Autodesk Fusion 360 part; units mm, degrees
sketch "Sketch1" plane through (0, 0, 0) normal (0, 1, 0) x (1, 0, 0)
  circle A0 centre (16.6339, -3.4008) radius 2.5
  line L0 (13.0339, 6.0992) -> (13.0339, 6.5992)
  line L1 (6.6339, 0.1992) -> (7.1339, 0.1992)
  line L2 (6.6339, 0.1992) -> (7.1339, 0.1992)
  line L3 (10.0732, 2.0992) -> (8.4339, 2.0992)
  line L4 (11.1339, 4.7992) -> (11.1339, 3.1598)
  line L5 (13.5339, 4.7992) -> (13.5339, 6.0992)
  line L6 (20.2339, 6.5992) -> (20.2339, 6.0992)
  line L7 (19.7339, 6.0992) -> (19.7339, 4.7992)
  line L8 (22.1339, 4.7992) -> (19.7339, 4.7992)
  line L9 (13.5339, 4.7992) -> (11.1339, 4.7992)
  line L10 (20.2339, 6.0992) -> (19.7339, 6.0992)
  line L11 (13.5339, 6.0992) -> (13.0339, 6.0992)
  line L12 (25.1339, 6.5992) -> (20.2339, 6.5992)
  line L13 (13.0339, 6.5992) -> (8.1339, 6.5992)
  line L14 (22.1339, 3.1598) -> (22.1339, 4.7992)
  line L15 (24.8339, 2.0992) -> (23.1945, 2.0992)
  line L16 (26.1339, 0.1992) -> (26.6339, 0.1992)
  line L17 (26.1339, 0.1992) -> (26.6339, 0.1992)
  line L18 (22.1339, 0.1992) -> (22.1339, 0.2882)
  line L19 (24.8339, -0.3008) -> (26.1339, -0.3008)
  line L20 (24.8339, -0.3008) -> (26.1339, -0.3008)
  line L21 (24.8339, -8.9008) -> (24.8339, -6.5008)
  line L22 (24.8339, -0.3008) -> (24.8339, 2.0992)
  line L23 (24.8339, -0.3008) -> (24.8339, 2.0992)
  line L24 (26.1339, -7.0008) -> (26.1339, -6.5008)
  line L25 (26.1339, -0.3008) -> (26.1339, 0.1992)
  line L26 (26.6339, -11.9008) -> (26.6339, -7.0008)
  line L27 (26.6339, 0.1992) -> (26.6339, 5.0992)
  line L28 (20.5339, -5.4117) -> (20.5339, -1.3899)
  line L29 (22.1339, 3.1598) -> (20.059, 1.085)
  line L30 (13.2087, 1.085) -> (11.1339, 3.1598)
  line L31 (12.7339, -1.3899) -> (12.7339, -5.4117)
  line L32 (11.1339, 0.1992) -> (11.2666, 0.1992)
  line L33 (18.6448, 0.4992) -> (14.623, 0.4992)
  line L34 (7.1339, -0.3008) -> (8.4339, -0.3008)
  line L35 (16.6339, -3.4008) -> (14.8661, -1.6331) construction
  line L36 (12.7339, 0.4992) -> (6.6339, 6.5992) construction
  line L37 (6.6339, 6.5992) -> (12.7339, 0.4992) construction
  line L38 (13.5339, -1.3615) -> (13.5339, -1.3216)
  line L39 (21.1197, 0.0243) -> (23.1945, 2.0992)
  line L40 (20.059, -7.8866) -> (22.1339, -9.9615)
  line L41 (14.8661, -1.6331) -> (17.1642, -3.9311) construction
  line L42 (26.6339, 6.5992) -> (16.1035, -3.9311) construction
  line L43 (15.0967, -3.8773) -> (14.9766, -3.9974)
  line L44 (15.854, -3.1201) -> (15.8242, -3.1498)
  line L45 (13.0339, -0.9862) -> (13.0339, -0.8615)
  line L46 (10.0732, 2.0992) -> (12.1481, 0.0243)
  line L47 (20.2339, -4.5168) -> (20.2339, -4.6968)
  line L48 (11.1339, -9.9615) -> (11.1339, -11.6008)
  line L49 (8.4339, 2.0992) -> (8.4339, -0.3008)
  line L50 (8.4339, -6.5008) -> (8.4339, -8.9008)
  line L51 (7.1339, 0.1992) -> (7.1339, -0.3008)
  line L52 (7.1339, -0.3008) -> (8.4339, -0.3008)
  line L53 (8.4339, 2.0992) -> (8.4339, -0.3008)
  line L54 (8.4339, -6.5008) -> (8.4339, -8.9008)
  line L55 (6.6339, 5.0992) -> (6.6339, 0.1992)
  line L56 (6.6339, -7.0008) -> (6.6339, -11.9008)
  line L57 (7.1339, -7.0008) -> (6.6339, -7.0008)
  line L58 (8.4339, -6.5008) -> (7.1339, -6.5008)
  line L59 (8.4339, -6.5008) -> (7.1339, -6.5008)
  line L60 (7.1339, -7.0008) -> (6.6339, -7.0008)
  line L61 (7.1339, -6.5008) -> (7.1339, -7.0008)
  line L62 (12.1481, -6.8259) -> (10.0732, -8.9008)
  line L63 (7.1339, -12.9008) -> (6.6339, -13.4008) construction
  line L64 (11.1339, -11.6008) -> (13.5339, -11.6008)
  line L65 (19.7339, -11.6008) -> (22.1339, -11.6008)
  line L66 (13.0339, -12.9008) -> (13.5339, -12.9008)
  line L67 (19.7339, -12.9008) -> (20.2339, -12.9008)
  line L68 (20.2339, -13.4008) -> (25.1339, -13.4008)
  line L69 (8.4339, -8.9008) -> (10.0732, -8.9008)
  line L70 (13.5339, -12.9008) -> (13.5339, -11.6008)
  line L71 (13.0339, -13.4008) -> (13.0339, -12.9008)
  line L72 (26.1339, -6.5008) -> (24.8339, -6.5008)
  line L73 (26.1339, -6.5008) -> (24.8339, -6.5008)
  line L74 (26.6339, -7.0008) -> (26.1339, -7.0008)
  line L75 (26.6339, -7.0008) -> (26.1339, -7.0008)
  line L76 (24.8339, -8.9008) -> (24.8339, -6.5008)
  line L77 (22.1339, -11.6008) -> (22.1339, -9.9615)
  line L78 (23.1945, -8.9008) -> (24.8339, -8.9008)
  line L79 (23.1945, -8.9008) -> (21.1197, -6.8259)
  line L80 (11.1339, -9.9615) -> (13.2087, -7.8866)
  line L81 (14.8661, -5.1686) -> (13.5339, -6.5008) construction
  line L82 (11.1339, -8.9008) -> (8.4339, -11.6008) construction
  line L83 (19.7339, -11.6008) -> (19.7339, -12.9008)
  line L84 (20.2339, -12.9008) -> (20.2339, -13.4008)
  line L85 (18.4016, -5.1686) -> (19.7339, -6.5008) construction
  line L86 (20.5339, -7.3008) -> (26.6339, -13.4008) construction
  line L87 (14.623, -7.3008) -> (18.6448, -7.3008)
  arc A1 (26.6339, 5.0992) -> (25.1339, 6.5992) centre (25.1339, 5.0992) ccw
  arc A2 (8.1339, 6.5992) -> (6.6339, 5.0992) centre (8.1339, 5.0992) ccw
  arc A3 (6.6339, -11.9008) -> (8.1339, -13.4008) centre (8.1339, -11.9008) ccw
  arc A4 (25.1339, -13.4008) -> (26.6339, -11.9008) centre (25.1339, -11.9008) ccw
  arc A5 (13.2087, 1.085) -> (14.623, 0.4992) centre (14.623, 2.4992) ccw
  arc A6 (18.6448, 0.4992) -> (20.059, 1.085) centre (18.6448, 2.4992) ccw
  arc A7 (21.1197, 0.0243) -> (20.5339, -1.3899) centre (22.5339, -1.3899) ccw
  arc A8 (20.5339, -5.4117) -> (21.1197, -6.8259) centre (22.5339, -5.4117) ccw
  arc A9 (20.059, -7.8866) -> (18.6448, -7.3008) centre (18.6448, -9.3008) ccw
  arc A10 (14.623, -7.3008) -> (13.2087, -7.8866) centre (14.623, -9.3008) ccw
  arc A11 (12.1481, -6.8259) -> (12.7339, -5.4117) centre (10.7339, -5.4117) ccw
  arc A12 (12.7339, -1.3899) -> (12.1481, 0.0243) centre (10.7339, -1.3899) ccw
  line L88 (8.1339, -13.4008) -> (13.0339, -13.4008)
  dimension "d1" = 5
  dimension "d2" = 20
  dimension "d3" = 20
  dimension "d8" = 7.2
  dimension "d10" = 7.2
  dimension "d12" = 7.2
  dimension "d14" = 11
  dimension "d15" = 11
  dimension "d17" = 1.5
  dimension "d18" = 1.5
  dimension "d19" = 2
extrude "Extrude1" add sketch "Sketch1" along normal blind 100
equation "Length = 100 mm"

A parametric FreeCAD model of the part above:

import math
import FreeCAD as App
import Part
import Sketcher
from FreeCAD import Vector

doc = App.newDocument("Part")
body = doc.addObject("PartDesign::Body", "Body")

# Sketch on XZ plane
sketch1 = body.newObject("Sketcher::SketchObject", "Sketch")
sketch1.AttachmentSupport = (doc.getObject("XZ_Plane"), [""])
sketch1.MapMode = "FlatFace"
sketch1.addGeometry(Part.LineSegment(Vector(13.5339, -6.0992, 0), Vector(13.0339, -6.0992, 0)), False)
sketch1.addGeometry(Part.LineSegment(Vector(13.0339, -6.0992, 0), Vector(13.0339, -6.5992, 0)), False)
sketch1.addGeometry(Part.LineSegment(Vector(13.0339, -6.5992, 0), Vector(8.1339, -6.5992, 0)), False)
sketch1.addGeometry(Part.ArcOfCircle(Part.Circle(Vector(8.1339, -5.0992, 0), Vector(0, 0, 1), 1.5), math.radians(180), math.radians(270)), False)
sketch1.addGeometry(Part.LineSegment(Vector(6.6339, -5.0992, 0), Vector(6.6339, -0.1992, 0)), False)
sketch1.addGeometry(Part.LineSegment(Vector(6.6339, -0.1992, 0), Vector(7.1339, -0.1992, 0)), False)
sketch1.addGeometry(Part.LineSegment(Vector(7.1339, -0.1992, 0), Vector(7.1339, 0.3008, 0)), False)
sketch1.addGeometry(Part.LineSegment(Vector(7.1339, 0.3008, 0), Vector(8.4339, 0.3008, 0)), False)
sketch1.addGeometry(Part.LineSegment(Vector(8.4339, 0.3008, 0), Vector(8.4339, -2.0992, 0)), False)
sketch1.addGeometry(Part.LineSegment(Vector(8.4339, -2.0992, 0), Vector(10.0732, -2.0992, 0)), False)
sketch1.addGeometry(Part.LineSegment(Vector(10.0732, -2.0992, 0), Vector(12.1481, -0.0243, 0)), False)
sketch1.addGeometry(Part.ArcOfCircle(Part.Circle(Vector(10.7339, 1.3899, 0), Vector(0, 0, 1), 2), math.radians(-45), math.radians(0)), False)
sketch1.addGeometry(Part.LineSegment(Vector(12.7339, 1.3899, 0), Vector(12.7339, 5.4117, 0)), False)
sketch1.addGeometry(Part.ArcOfCircle(Part.Circle(Vector(10.7339, 5.4117, 0), Vector(0, 0, 1), 1.999981), math.radians(0), math.radians(45)), False)
sketch1.addGeometry(Part.LineSegment(Vector(12.1481, 6.8259, 0), Vector(10.0732, 8.9008, 0)), False)
sketch1.addGeometry(Part.LineSegment(Vector(10.0732, 8.9008, 0), Vector(8.4339, 8.9008, 0)), False)
sketch1.addGeometry(Part.LineSegment(Vector(8.4339, 8.9008, 0), Vector(8.4339, 6.5008, 0)), False)
sketch1.addGeometry(Part.LineSegment(Vector(8.4339, 6.5008, 0), Vector(7.1339, 6.5008, 0)), False)
sketch1.addGeometry(Part.LineSegment(Vector(7.1339, 6.5008, 0), Vector(7.1339, 7.0008, 0)), False)
sketch1.addGeometry(Part.LineSegment(Vector(7.1339, 7.0008, 0), Vector(6.6339, 7.0008, 0)), False)
sketch1.addGeometry(Part.LineSegment(Vector(6.6339, 7.0008, 0), Vector(6.6339, 11.9008, 0)), False)
sketch1.addGeometry(Part.ArcOfCircle(Part.Circle(Vector(8.1339, 11.9008, 0), Vector(0, 0, 1), 1.5), math.radians(90), math.radians(180)), False)
sketch1.addGeometry(Part.LineSegment(Vector(8.1339, 13.4008, 0), Vector(13.0339, 13.4008, 0)), False)
sketch1.addGeometry(Part.LineSegment(Vector(13.0339, 13.4008, 0), Vector(13.0339, 12.9008, 0)), False)
sketch1.addGeometry(Part.LineSegment(Vector(13.0339, 12.9008, 0), Vector(13.5339, 12.9008, 0)), False)
sketch1.addGeometry(Part.LineSegment(Vector(13.5339, 12.9008, 0), Vector(13.5339, 11.6008, 0)), False)
sketch1.addGeometry(Part.LineSegment(Vector(13.5339, 11.6008, 0), Vector(11.1339, 11.6008, 0)), False)
sketch1.addGeometry(Part.LineSegment(Vector(11.1339, 11.6008, 0), Vector(11.1339, 9.9615, 0)), False)
sketch1.addGeometry(Part.LineSegment(Vector(11.1339, 9.9615, 0), Vector(13.2087, 7.8866, 0)), False)
sketch1.addGeometry(Part.ArcOfCircle(Part.Circle(Vector(14.623, 9.3008, 0), Vector(0, 0, 1), 2), math.radians(-135.002026), math.radians(-90)), False)
sketch1.addGeometry(Part.LineSegment(Vector(14.623, 7.3008, 0), Vector(18.6448, 7.3008, 0)), False)
sketch1.addGeometry(Part.ArcOfCircle(Part.Circle(Vector(18.6448, 9.3008, 0), Vector(0, 0, 1), 1.999981), math.radians(-90), math.radians(-45)), False)
sketch1.addGeometry(Part.LineSegment(Vector(20.059, 7.8866, 0), Vector(22.1339, 9.9615, 0)), False)
sketch1.addGeometry(Part.LineSegment(Vector(22.1339, 9.9615, 0), Vector(22.1339, 11.6008, 0)), False)
sketch1.addGeometry(Part.LineSegment(Vector(22.1339, 11.6008, 0), Vector(19.7339, 11.6008, 0)), False)
sketch1.addGeometry(Part.LineSegment(Vector(19.7339, 11.6008, 0), Vector(19.7339, 12.9008, 0)), False)
sketch1.addGeometry(Part.LineSegment(Vector(19.7339, 12.9008, 0), Vector(20.2339, 12.9008, 0)), False)
sketch1.addGeometry(Part.LineSegment(Vector(20.2339, 12.9008, 0), Vector(20.2339, 13.4008, 0)), False)
sketch1.addGeometry(Part.LineSegment(Vector(20.2339, 13.4008, 0), Vector(25.1339, 13.4008, 0)), False)
sketch1.addGeometry(Part.ArcOfCircle(Part.Circle(Vector(25.1339, 11.9008, 0), Vector(0, 0, 1), 1.5), math.radians(0), math.radians(90)), False)
sketch1.addGeometry(Part.LineSegment(Vector(26.6339, 11.9008, 0), Vector(26.6339, 7.0008, 0)), False)
sketch1.addGeometry(Part.LineSegment(Vector(26.6339, 7.0008, 0), Vector(26.1339, 7.0008, 0)), False)
sketch1.addGeometry(Part.LineSegment(Vector(26.1339, 7.0008, 0), Vector(26.1339, 6.5008, 0)), False)
sketch1.addGeometry(Part.LineSegment(Vector(26.1339, 6.5008, 0), Vector(24.8339, 6.5008, 0)), False)
sketch1.addGeometry(Part.LineSegment(Vector(24.8339, 6.5008, 0), Vector(24.8339, 8.9008, 0)), False)
sketch1.addGeometry(Part.LineSegment(Vector(24.8339, 8.9008, 0), Vector(23.1945, 8.9008, 0)), False)
sketch1.addGeometry(Part.LineSegment(Vector(23.1945, 8.9008, 0), Vector(21.1197, 6.8259, 0)), False)
sketch1.addGeometry(Part.ArcOfCircle(Part.Circle(Vector(22.5339, 5.4117, 0), Vector(0, 0, 1), 2), math.radians(135), math.radians(180)), False)
sketch1.addGeometry(Part.LineSegment(Vector(20.5339, 5.4117, 0), Vector(20.5339, 1.3899, 0)), False)
sketch1.addGeometry(Part.ArcOfCircle(Part.Circle(Vector(22.5339, 1.3899, 0), Vector(0, 0, 1), 1.999981), math.radians(180), math.radians(225)), False)
sketch1.addGeometry(Part.LineSegment(Vector(21.1197, -0.0243, 0), Vector(23.1945, -2.0992, 0)), False)
sketch1.addGeometry(Part.LineSegment(Vector(23.1945, -2.0992, 0), Vector(24.8339, -2.0992, 0)), False)
sketch1.addGeometry(Part.LineSegment(Vector(24.8339, -2.0992, 0), Vector(24.8339, 0.3008, 0)), False)
sketch1.addGeometry(Part.LineSegment(Vector(24.8339, 0.3008, 0), Vector(26.1339, 0.3008, 0)), False)
sketch1.addGeometry(Part.LineSegment(Vector(26.1339, 0.3008, 0), Vector(26.1339, -0.1992, 0)), False)
sketch1.addGeometry(Part.LineSegment(Vector(26.1339, -0.1992, 0), Vector(26.6339, -0.1992, 0)), False)
sketch1.addGeometry(Part.LineSegment(Vector(26.6339, -0.1992, 0), Vector(26.6339, -5.0992, 0)), False)
sketch1.addGeometry(Part.ArcOfCircle(Part.Circle(Vector(25.1339, -5.0992, 0), Vector(0, 0, 1), 1.5), math.radians(-90), math.radians(0)), False)
sketch1.addGeometry(Part.LineSegment(Vector(25.1339, -6.5992, 0), Vector(20.2339, -6.5992, 0)), False)
sketch1.addGeometry(Part.LineSegment(Vector(20.2339, -6.5992, 0), Vector(20.2339, -6.0992, 0)), False)
sketch1.addGeometry(Part.LineSegment(Vector(20.2339, -6.0992, 0), Vector(19.7339, -6.0992, 0)), False)
sketch1.addGeometry(Part.LineSegment(Vector(19.7339, -6.0992, 0), Vector(19.7339, -4.7992, 0)), False)
sketch1.addGeometry(Part.LineSegment(Vector(19.7339, -4.7992, 0), Vector(22.1339, -4.7992, 0)), False)
sketch1.addGeometry(Part.LineSegment(Vector(22.1339, -4.7992, 0), Vector(22.1339, -3.1598, 0)), False)
sketch1.addGeometry(Part.LineSegment(Vector(22.1339, -3.1598, 0), Vector(20.059, -1.085, 0)), False)
sketch1.addGeometry(Part.ArcOfCircle(Part.Circle(Vector(18.6448, -2.4992, 0), Vector(0, 0, 1), 2), math.radians(45), math.radians(90)), False)
sketch1.addGeometry(Part.LineSegment(Vector(18.6448, -0.4992, 0), Vector(14.623, -0.4992, 0)), False)
sketch1.addGeometry(Part.ArcOfCircle(Part.Circle(Vector(14.623, -2.4992, 0), Vector(0, 0, 1), 2.000052), math.radians(90), math.radians(135.002026)), False)
sketch1.addGeometry(Part.LineSegment(Vector(13.2087, -1.085, 0), Vector(11.1339, -3.1598, 0)), False)
sketch1.addGeometry(Part.LineSegment(Vector(11.1339, -3.1598, 0), Vector(11.1339, -4.7992, 0)), False)
sketch1.addGeometry(Part.LineSegment(Vector(11.1339, -4.7992, 0), Vector(13.5339, -4.7992, 0)), False)
sketch1.addGeometry(Part.LineSegment(Vector(13.5339, -4.7992, 0), Vector(13.5339, -6.0992, 0)), False)
sketch1.addGeometry(Part.Circle(Vector(16.6339, 3.4008, 0), Vector(0, 0, 1), 2.5), False)
sketch1.addConstraint(Sketcher.Constraint("Coincident", 0, 2, 1, 1))
sketch1.addConstraint(Sketcher.Constraint("Coincident", 1, 2, 2, 1))
sketch1.addConstraint(Sketcher.Constraint("Tangent", 2, 2, 3, 2))
sketch1.addConstraint(Sketcher.Constraint("Tangent", 3, 1, 4, 1))
sketch1.addConstraint(Sketcher.Constraint("Coincident", 4, 2, 5, 1))
sketch1.addConstraint(Sketcher.Constraint("Coincident", 5, 2, 6, 1))
sketch1.addConstraint(Sketcher.Constraint("Coincident", 6, 2, 7, 1))
sketch1.addConstraint(Sketcher.Constraint("Coincident", 7, 2, 8, 1))
sketch1.addConstraint(Sketcher.Constraint("Coincident", 8, 2, 9, 1))
sketch1.addConstraint(Sketcher.Constraint("Coincident", 9, 2, 10, 1))
sketch1.addConstraint(Sketcher.Constraint("Tangent", 10, 2, 11, 1))
sketch1.addConstraint(Sketcher.Constraint("Tangent", 11, 2, 12, 1))
sketch1.addConstraint(Sketcher.Constraint("Tangent", 12, 2, 13, 1))
sketch1.addConstraint(Sketcher.Constraint("Tangent", 13, 2, 14, 1))
sketch1.addConstraint(Sketcher.Constraint("Coincident", 14, 2, 15, 1))
sketch1.addConstraint(Sketcher.Constraint("Coincident", 15, 2, 16, 1))
sketch1.addConstraint(Sketcher.Constraint("Coincident", 16, 2, 17, 1))
sketch1.addConstraint(Sketcher.Constraint("Coincident", 17, 2, 18, 1))
sketch1.addConstraint(Sketcher.Constraint("Coincident", 18, 2, 19, 1))
sketch1.addConstraint(Sketcher.Constraint("Coincident", 19, 2, 20, 1))
sketch1.addConstraint(Sketcher.Constraint("Tangent", 20, 2, 21, 2))
sketch1.addConstraint(Sketcher.Constraint("Tangent", 21, 1, 22, 1))
sketch1.addConstraint(Sketcher.Constraint("Coincident", 22, 2, 23, 1))
sketch1.addConstraint(Sketcher.Constraint("Coincident", 23, 2, 24, 1))
sketch1.addConstraint(Sketcher.Constraint("Coincident", 24, 2, 25, 1))
sketch1.addConstraint(Sketcher.Constraint("Coincident", 25, 2, 26, 1))
sketch1.addConstraint(Sketcher.Constraint("Coincident", 26, 2, 27, 1))
sketch1.addConstraint(Sketcher.Constraint("Coincident", 27, 2, 28, 1))
sketch1.addConstraint(Sketcher.Constraint("Tangent", 28, 2, 29, 1))
sketch1.addConstraint(Sketcher.Constraint("Tangent", 29, 2, 30, 1))
sketch1.addConstraint(Sketcher.Constraint("Tangent", 30, 2, 31, 1))
sketch1.addConstraint(Sketcher.Constraint("Tangent", 31, 2, 32, 1))
sketch1.addConstraint(Sketcher.Constraint("Coincident", 32, 2, 33, 1))
sketch1.addConstraint(Sketcher.Constraint("Coincident", 33, 2, 34, 1))
sketch1.addConstraint(Sketcher.Constraint("Coincident", 34, 2, 35, 1))
sketch1.addConstraint(Sketcher.Constraint("Coincident", 35, 2, 36, 1))
sketch1.addConstraint(Sketcher.Constraint("Coincident", 36, 2, 37, 1))
sketch1.addConstraint(Sketcher.Constraint("Coincident", 37, 2, 38, 1))
sketch1.addConstraint(Sketcher.Constraint("Tangent", 38, 2, 39, 2))
sketch1.addConstraint(Sketcher.Constraint("Tangent", 39, 1, 40, 1))
sketch1.addConstraint(Sketcher.Constraint("Coincident", 40, 2, 41, 1))
sketch1.addConstraint(Sketcher.Constraint("Coincident", 41, 2, 42, 1))
sketch1.addConstraint(Sketcher.Constraint("Coincident", 42, 2, 43, 1))
sketch1.addConstraint(Sketcher.Constraint("Coincident", 43, 2, 44, 1))
sketch1.addConstraint(Sketcher.Constraint("Coincident", 44, 2, 45, 1))
sketch1.addConstraint(Sketcher.Constraint("Coincident", 45, 2, 46, 1))
sketch1.addConstraint(Sketcher.Constraint("Tangent", 46, 2, 47, 1))
sketch1.addConstraint(Sketcher.Constraint("Tangent", 47, 2, 48, 1))
sketch1.addConstraint(Sketcher.Constraint("Tangent", 48, 2, 49, 1))
sketch1.addConstraint(Sketcher.Constraint("Tangent", 49, 2, 50, 1))
sketch1.addConstraint(Sketcher.Constraint("Coincident", 50, 2, 51, 1))
sketch1.addConstraint(Sketcher.Constraint("Coincident", 51, 2, 52, 1))
sketch1.addConstraint(Sketcher.Constraint("Coincident", 52, 2, 53, 1))
sketch1.addConstraint(Sketcher.Constraint("Coincident", 53, 2, 54, 1))
sketch1.addConstraint(Sketcher.Constraint("Coincident", 54, 2, 55, 1))
sketch1.addConstraint(Sketcher.Constraint("Coincident", 55, 2, 56, 1))
sketch1.addConstraint(Sketcher.Constraint("Tangent", 56, 2, 57, 2))
sketch1.addConstraint(Sketcher.Constraint("Tangent", 57, 1, 58, 1))
sketch1.addConstraint(Sketcher.Constraint("Coincident", 58, 2, 59, 1))
sketch1.addConstraint(Sketcher.Constraint("Coincident", 59, 2, 60, 1))
sketch1.addConstraint(Sketcher.Constraint("Coincident", 60, 2, 61, 1))
sketch1.addConstraint(Sketcher.Constraint("Coincident", 61, 2, 62, 1))
sketch1.addConstraint(Sketcher.Constraint("Coincident", 62, 2, 63, 1))
sketch1.addConstraint(Sketcher.Constraint("Coincident", 63, 2, 64, 1))
sketch1.addConstraint(Sketcher.Constraint("Tangent", 64, 2, 65, 1))
sketch1.addConstraint(Sketcher.Constraint("Tangent", 65, 2, 66, 1))
sketch1.addConstraint(Sketcher.Constraint("Tangent", 66, 2, 67, 1))
sketch1.addConstraint(Sketcher.Constraint("Tangent", 67, 2, 68, 1))
sketch1.addConstraint(Sketcher.Constraint("Coincident", 68, 2, 69, 1))
sketch1.addConstraint(Sketcher.Constraint("Coincident", 69, 2, 70, 1))
sketch1.addConstraint(Sketcher.Constraint("Coincident", 70, 2, 71, 1))
sketch1.addConstraint(Sketcher.Constraint("Coincident", 71, 2, 0, 1))
sketch1.addConstraint(Sketcher.Constraint("Horizontal", 0))
sketch1.addConstraint(Sketcher.Constraint("Vertical", 1))
sketch1.addConstraint(Sketcher.Constraint("Horizontal", 2))
sketch1.addConstraint(Sketcher.Constraint("Vertical", 4))
sketch1.addConstraint(Sketcher.Constraint("Horizontal", 5))
sketch1.addConstraint(Sketcher.Constraint("Vertical", 6))
sketch1.addConstraint(Sketcher.Constraint("Horizontal", 7))
sketch1.addConstraint(Sketcher.Constraint("Vertical", 8))
sketch1.addConstraint(Sketcher.Constraint("Horizontal", 9))
sketch1.addConstraint(Sketcher.Constraint("Vertical", 12))
sketch1.addConstraint(Sketcher.Constraint("Horizontal", 15))
sketch1.addConstraint(Sketcher.Constraint("Vertical", 16))
sketch1.addConstraint(Sketcher.Constraint("Horizontal", 17))
sketch1.addConstraint(Sketcher.Constraint("Vertical", 18))
sketch1.addConstraint(Sketcher.Constraint("Horizontal", 19))
sketch1.addConstraint(Sketcher.Constraint("Vertical", 20))
sketch1.addConstraint(Sketcher.Constraint("Horizontal", 22))
sketch1.addConstraint(Sketcher.Constraint("Vertical", 23))
sketch1.addConstraint(Sketcher.Constraint("Horizontal", 24))
sketch1.addConstraint(Sketcher.Constraint("Vertical", 25))
sketch1.addConstraint(Sketcher.Constraint("Horizontal", 26))
sketch1.addConstraint(Sketcher.Constraint("Vertical", 27))
sketch1.addConstraint(Sketcher.Constraint("Horizontal", 30))
sketch1.addConstraint(Sketcher.Constraint("Vertical", 33))
sketch1.addConstraint(Sketcher.Constraint("Horizontal", 34))
sketch1.addConstraint(Sketcher.Constraint("Vertical", 35))
sketch1.addConstraint(Sketcher.Constraint("Horizontal", 36))
sketch1.addConstraint(Sketcher.Constraint("Vertical", 37))
sketch1.addConstraint(Sketcher.Constraint("Horizontal", 38))
sketch1.addConstraint(Sketcher.Constraint("Vertical", 40))
sketch1.addConstraint(Sketcher.Constraint("Horizontal", 41))
sketch1.addConstraint(Sketcher.Constraint("Vertical", 42))
sketch1.addConstraint(Sketcher.Constraint("Horizontal", 43))
sketch1.addConstraint(Sketcher.Constraint("Vertical", 44))
sketch1.addConstraint(Sketcher.Constraint("Horizontal", 45))
sketch1.addConstraint(Sketcher.Constraint("Vertical", 48))
sketch1.addConstraint(Sketcher.Constraint("Horizontal", 51))
sketch1.addConstraint(Sketcher.Constraint("Vertical", 52))
sketch1.addConstraint(Sketcher.Constraint("Horizontal", 53))
sketch1.addConstraint(Sketcher.Constraint("Vertical", 54))
sketch1.addConstraint(Sketcher.Constraint("Horizontal", 55))
sketch1.addConstraint(Sketcher.Constraint("Vertical", 56))
sketch1.addConstraint(Sketcher.Constraint("Horizontal", 58))
sketch1.addConstraint(Sketcher.Constraint("Vertical", 59))
sketch1.addConstraint(Sketcher.Constraint("Horizontal", 60))
sketch1.addConstraint(Sketcher.Constraint("Vertical", 61))
sketch1.addConstraint(Sketcher.Constraint("Horizontal", 62))
sketch1.addConstraint(Sketcher.Constraint("Vertical", 63))
sketch1.addConstraint(Sketcher.Constraint("Horizontal", 66))
sketch1.addConstraint(Sketcher.Constraint("Vertical", 69))
sketch1.addConstraint(Sketcher.Constraint("Horizontal", 70))
sketch1.addConstraint(Sketcher.Constraint("Vertical", 71))
sketch1.addConstraint(Sketcher.Constraint("Equal", 11, 13))
sketch1.addConstraint(Sketcher.Constraint("Equal", 3, 21))
sketch1.addConstraint(Sketcher.Constraint("Equal", 13, 29))
sketch1.addConstraint(Sketcher.Constraint("Equal", 29, 31))
sketch1.addConstraint(Sketcher.Constraint("Equal", 21, 39))
sketch1.addConstraint(Sketcher.Constraint("Equal", 31, 47))
sketch1.addConstraint(Sketcher.Constraint("Equal", 47, 49))
sketch1.addConstraint(Sketcher.Constraint("Equal", 39, 57))
sketch1.addConstraint(Sketcher.Constraint("Equal", 49, 65))
sketch1.addConstraint(Sketcher.Constraint("Equal", 65, 67))
sketch1.addConstraint(Sketcher.Constraint("Perpendicular", 10, 14))
sketch1.addConstraint(Sketcher.Constraint("Parallel", 14, 28))
sketch1.addConstraint(Sketcher.Constraint("Perpendicular", 28, 32))
sketch1.addConstraint(Sketcher.Constraint("Parallel", 32, 46))
sketch1.addConstraint(Sketcher.Constraint("Perpendicular", 46, 50))
sketch1.addConstraint(Sketcher.Constraint("Parallel", 50, 64))
sketch1.addConstraint(Sketcher.Constraint("Perpendicular", 64, 68))
sketch1.addConstraint(Sketcher.Constraint("Horizontal", 21, 3, 39, 3))
sketch1.addConstraint(Sketcher.Constraint("Horizontal", 13, 3, 47, 3))
sketch1.addConstraint(Sketcher.Constraint("Horizontal", 11, 3, 49, 3))
sketch1.addConstraint(Sketcher.Constraint("Horizontal", 3, 3, 57, 3))
sketch1.addConstraint(Sketcher.Constraint("Horizontal", 28, 2, 31, 2))
sketch1.addConstraint(Sketcher.Constraint("Horizontal", 27, 2, 32, 2))
sketch1.addConstraint(Sketcher.Constraint("Horizontal", 26, 2, 33, 2))
sketch1.addConstraint(Sketcher.Constraint("Horizontal", 24, 2, 35, 2))
sketch1.addConstraint(Sketcher.Constraint("Horizontal", 19, 2, 40, 2))
sketch1.addConstraint(Sketcher.Constraint("Horizontal", 17, 2, 42, 2))
sketch1.addConstraint(Sketcher.Constraint("Horizontal", 15, 2, 44, 2))
sketch1.addConstraint(Sketcher.Constraint("Horizontal", 9, 2, 50, 2))
sketch1.addConstraint(Sketcher.Constraint("Horizontal", 7, 2, 52, 2))
sketch1.addConstraint(Sketcher.Constraint("Horizontal", 5, 2, 54, 2))
sketch1.addConstraint(Sketcher.Constraint("Horizontal", 0, 2, 59, 2))
sketch1.addConstraint(Sketcher.Constraint("Horizontal", 63, 2, 68, 2))
sketch1.addConstraint(Sketcher.Constraint("Horizontal", 62, 2, 69, 2))
sketch1.addConstraint(Sketcher.Constraint("Vertical", 3, 3, 21, 3))
sketch1.addConstraint(Sketcher.Constraint("Vertical", 39, 3, 57, 3))
sketch1.addConstraint(Sketcher.Constraint("Vertical", 31, 3, 65, 3))
sketch1.addConstraint(Sketcher.Constraint("Vertical", 29, 3, 67, 3))
sketch1.addConstraint(Sketcher.Constraint("Vertical", 9, 2, 14, 2))
sketch1.addConstraint(Sketcher.Constraint("Vertical", 8, 2, 15, 2))
sketch1.addConstraint(Sketcher.Constraint("Vertical", 6, 2, 17, 2))
sketch1.addConstraint(Sketcher.Constraint("Vertical", 1, 2, 22, 2))
sketch1.addConstraint(Sketcher.Constraint("Vertical", 44, 2, 51, 2))
sketch1.addConstraint(Sketcher.Constraint("Vertical", 42, 2, 53, 2))
sketch1.addConstraint(Sketcher.Constraint("Vertical", 37, 2, 58, 2))
sketch1.addConstraint(Sketcher.Constraint("Vertical", 35, 2, 60, 2))
sketch1.addConstraint(Sketcher.Constraint("Vertical", 33, 2, 62, 2))
sketch1.addConstraint(Sketcher.Constraint("Vertical", 25, 2, 70, 2))
sketch1.addConstraint(Sketcher.Constraint("Equal", 0, 5))
sketch1.addConstraint(Sketcher.Constraint("Equal", 26, 34))
sketch1.addConstraint(Sketcher.Constraint("Equal", 24, 36))
sketch1.addConstraint(Sketcher.Constraint("Equal", 22, 38))
sketch1.addConstraint(Sketcher.Constraint("Equal", 36, 41))
sketch1.addConstraint(Sketcher.Constraint("Equal", 17, 43))
sketch1.addConstraint(Sketcher.Constraint("Equal", 15, 45))
sketch1.addConstraint(Sketcher.Constraint("Equal", 60, 1))
sketch1.addConstraint(Sketcher.Constraint("Equal", 58, 4))
sketch1.addConstraint(Sketcher.Constraint("Equal", 1, 6))
sketch1.addConstraint(Sketcher.Constraint("Equal", 70, 8))
sketch1.addConstraint(Sketcher.Constraint("Equal", 66, 12))
sketch1.addConstraint(Sketcher.Constraint("Equal", 8, 16))
sketch1.addConstraint(Sketcher.Constraint("Equal", 6, 18))
sketch1.addConstraint(Sketcher.Constraint("Equal", 4, 20))
sketch1.addConstraint(Sketcher.Constraint("Equal", 18, 23))
sketch1.addConstraint(Sketcher.Constraint("Equal", 53, 25))
sketch1.addConstraint(Sketcher.Constraint("Equal", 51, 27))
sketch1.addConstraint(Sketcher.Constraint("Equal", 35, 61))
sketch1.addConstraint(Sketcher.Constraint("Equal", 33, 63))
sketch1.addConstraint(Sketcher.Constraint("Equal", 14, 28))
sketch1.addConstraint(Sketcher.Constraint("Diameter", 72, 5.0))
sketch1.addConstraint(Sketcher.Constraint("Radius", 11, 2.0))
sketch1.addConstraint(Sketcher.Constraint("Radius", 3, 1.5))
sketch1.addConstraint(Sketcher.Constraint("DistanceX", 0, 2, 0, 1, 0.5))
sketch1.addConstraint(Sketcher.Constraint("DistanceX", 2, 2, 2, 1, 4.9))
sketch1.addConstraint(Sketcher.Constraint("DistanceX", 7, 1, 7, 2, 1.3))
sketch1.addConstraint(Sketcher.Constraint("DistanceX", 26, 2, 26, 1, 2.4))
sketch1.addConstraint(Sketcher.Constraint("DistanceY", -1, 1, 11, 3, 1.39))
sketch1.addConstraint(Sketcher.Constraint("DistanceX", 9, 1, 9, 2, 1.6393))
sketch1.addConstraint(Sketcher.Constraint("DistanceX", 30, 1, 30, 2, 4.0218))
sketch1.addConstraint(Sketcher.Constraint("DistanceX", -1, 1, 3, 3, 8.134))
sketch1.addConstraint(Sketcher.Constraint("DistanceX", -1, 1, 11, 3, 10.734))
sketch1.addConstraint(Sketcher.Constraint("DistanceX", -1, 1, 72, 3, 16.634))
sketch1.addConstraint(Sketcher.Constraint("DistanceY", -1, 1, 72, 3, 3.4008))
pad1 = body.newObject("PartDesign::Pad", "Pad")
pad1.Profile = sketch1
pad1.Length = 100
pad1.Reversed = True

doc.recompute()
